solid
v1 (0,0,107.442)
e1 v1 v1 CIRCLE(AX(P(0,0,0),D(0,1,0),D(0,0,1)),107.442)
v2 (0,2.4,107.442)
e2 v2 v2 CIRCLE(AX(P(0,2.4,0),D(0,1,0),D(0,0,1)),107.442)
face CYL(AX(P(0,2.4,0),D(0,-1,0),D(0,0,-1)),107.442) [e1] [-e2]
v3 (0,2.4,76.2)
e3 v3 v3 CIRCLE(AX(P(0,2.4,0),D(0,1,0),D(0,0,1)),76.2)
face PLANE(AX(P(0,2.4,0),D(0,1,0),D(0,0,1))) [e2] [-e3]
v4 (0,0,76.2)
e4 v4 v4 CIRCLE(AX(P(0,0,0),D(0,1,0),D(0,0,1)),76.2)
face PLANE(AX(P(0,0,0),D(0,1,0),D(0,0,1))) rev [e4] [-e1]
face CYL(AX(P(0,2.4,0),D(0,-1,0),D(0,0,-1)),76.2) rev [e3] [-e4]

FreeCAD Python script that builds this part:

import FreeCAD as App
import Part
import Sketcher
Q = App.Units.Quantity

doc = App.newDocument("Part")
body = doc.addObject("PartDesign::Body", "Body")

sketch1 = doc.addObject("Sketcher::SketchObject", "Sketch")
body.addObject(sketch1)
sketch1.AttachmentSupport = (doc.XZ_Plane, [""])
sketch1.MapMode = "FlatFace"
sketch1.addGeometry([
    Part.Circle(App.Vector(0, 0, 0), App.Vector(0, 0, 1), 107),
    Part.Circle(App.Vector(0, 0, 0), App.Vector(0, 0, 1), 76),
], False)
sketch1.addConstraint([
    Sketcher.Constraint("Coincident", 0, 3, -1, 1),
    Sketcher.Constraint("Coincident", 1, 3, -1, 1),
    Sketcher.Constraint("Diameter", 1, Q("6 in")),
    Sketcher.Constraint("Diameter", 0, Q("8.46 in")),
])
pad1 = doc.addObject("PartDesign::Pad", "Pad")
body.addObject(pad1)
pad1.Profile = sketch1
pad1.Length = 2.4
pad1.Reversed = True

doc.recompute()
